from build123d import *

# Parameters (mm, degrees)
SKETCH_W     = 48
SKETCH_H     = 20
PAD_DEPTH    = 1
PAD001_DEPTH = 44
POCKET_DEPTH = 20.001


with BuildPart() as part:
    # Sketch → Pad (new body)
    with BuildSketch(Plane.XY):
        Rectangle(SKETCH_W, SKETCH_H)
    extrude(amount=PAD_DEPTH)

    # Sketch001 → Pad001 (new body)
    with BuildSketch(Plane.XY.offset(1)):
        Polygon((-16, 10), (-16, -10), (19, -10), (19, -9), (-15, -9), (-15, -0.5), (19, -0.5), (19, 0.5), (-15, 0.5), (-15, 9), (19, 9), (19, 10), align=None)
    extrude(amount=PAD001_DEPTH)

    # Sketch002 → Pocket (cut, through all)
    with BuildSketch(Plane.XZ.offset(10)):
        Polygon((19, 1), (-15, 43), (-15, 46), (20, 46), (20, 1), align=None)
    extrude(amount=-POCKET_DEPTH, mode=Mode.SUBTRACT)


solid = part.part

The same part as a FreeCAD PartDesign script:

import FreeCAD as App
import Part
import Sketcher

doc = App.newDocument("Part")
body = doc.addObject("PartDesign::Body", "Body")

sketch1 = doc.addObject("Sketcher::SketchObject", "Sketch")
body.addObject(sketch1)
sketch1.AttachmentSupport = (doc.XY_Plane, [""])
sketch1.MapMode = "FlatFace"
sketch1.addGeometry(Part.LineSegment(App.Vector(-24, 10, 0), App.Vector(-24, -10, 0)), False)
sketch1.addGeometry(Part.LineSegment(App.Vector(-24, -10, 0), App.Vector(24, -10, 0)), False)
sketch1.addGeometry(Part.LineSegment(App.Vector(24, -10, 0), App.Vector(24, 10, 0)), False)
sketch1.addGeometry(Part.LineSegment(App.Vector(24, 10, 0), App.Vector(-24, 10, 0)), False)
sketch1.addConstraint(Sketcher.Constraint("Coincident", 0, 2, 1, 1))
sketch1.addConstraint(Sketcher.Constraint("Coincident", 1, 2, 2, 1))
sketch1.addConstraint(Sketcher.Constraint("Coincident", 2, 2, 3, 1))
sketch1.addConstraint(Sketcher.Constraint("Coincident", 3, 2, 0, 1))
sketch1.addConstraint(Sketcher.Constraint("Vertical", 0))
sketch1.addConstraint(Sketcher.Constraint("Horizontal", 1))
sketch1.addConstraint(Sketcher.Constraint("Vertical", 2))
sketch1.addConstraint(Sketcher.Constraint("Horizontal", 3))
sketch1.addConstraint(Sketcher.Constraint("Symmetric", 0, 2, 2, 2, -1, 1))
sketch1.addConstraint(Sketcher.Constraint("DistanceX", 1, 1, 1, 2, 48.0))
sketch1.addConstraint(Sketcher.Constraint("DistanceY", 0, 2, 0, 1, 20.0))
pad1 = doc.addObject("PartDesign::Pad", "Pad")
body.addObject(pad1)
pad1.Profile = sketch1
pad1.Length = 1

sketch2 = doc.addObject("Sketcher::SketchObject", "Sketch001")
body.addObject(sketch2)
sketch2.AttachmentSupport = (doc.XY_Plane, [""])
sketch2.MapMode = "FlatFace"
sketch2.AttachmentOffset = App.Placement(App.Vector(0, 0, 1), App.Rotation())
sketch2.addGeometry(Part.LineSegment(App.Vector(-16, 10, 0), App.Vector(-16, -10, 0)), False)
sketch2.addGeometry(Part.LineSegment(App.Vector(-16, -10, 0), App.Vector(19, -10, 0)), False)
sketch2.addGeometry(Part.LineSegment(App.Vector(19, -10, 0), App.Vector(19, -9, 0)), False)
sketch2.addGeometry(Part.LineSegment(App.Vector(19, -9, 0), App.Vector(-15, -9, 0)), False)
sketch2.addGeometry(Part.LineSegment(App.Vector(-15, -9, 0), App.Vector(-15, -0.5, 0)), False)
sketch2.addGeometry(Part.LineSegment(App.Vector(-15, -0.5, 0), App.Vector(19, -0.5, 0)), False)
sketch2.addGeometry(Part.LineSegment(App.Vector(19, -0.5, 0), App.Vector(19, 0.5, 0)), False)
sketch2.addGeometry(Part.LineSegment(App.Vector(19, 0.5, 0), App.Vector(-15, 0.5, 0)), False)
sketch2.addGeometry(Part.LineSegment(App.Vector(-15, 0.5, 0), App.Vector(-15, 9, 0)), False)
sketch2.addGeometry(Part.LineSegment(App.Vector(-15, 9, 0), App.Vector(19, 9, 0)), False)
sketch2.addGeometry(Part.LineSegment(App.Vector(19, 9, 0), App.Vector(19, 10, 0)), False)
sketch2.addGeometry(Part.LineSegment(App.Vector(19, 10, 0), App.Vector(-16, 10, 0)), False)
sketch2.addConstraint(Sketcher.Constraint("Coincident", 0, 2, 1, 1))
sketch2.addConstraint(Sketcher.Constraint("Coincident", 1, 2, 2, 1))
sketch2.addConstraint(Sketcher.Constraint("Coincident", 2, 2, 3, 1))
sketch2.addConstraint(Sketcher.Constraint("Coincident", 3, 2, 4, 1))
sketch2.addConstraint(Sketcher.Constraint("Coincident", 4, 2, 5, 1))
sketch2.addConstraint(Sketcher.Constraint("Coincident", 5, 2, 6, 1))
sketch2.addConstraint(Sketcher.Constraint("Coincident", 6, 2, 7, 1))
sketch2.addConstraint(Sketcher.Constraint("Coincident", 7, 2, 8, 1))
sketch2.addConstraint(Sketcher.Constraint("Coincident", 8, 2, 9, 1))
sketch2.addConstraint(Sketcher.Constraint("Coincident", 9, 2, 10, 1))
sketch2.addConstraint(Sketcher.Constraint("Coincident", 10, 2, 11, 1))
sketch2.addConstraint(Sketcher.Constraint("Coincident", 11, 2, 0, 1))
sketch2.addConstraint(Sketcher.Constraint("Vertical", 0))
sketch2.addConstraint(Sketcher.Constraint("Horizontal", 1))
sketch2.addConstraint(Sketcher.Constraint("Vertical", 2))
sketch2.addConstraint(Sketcher.Constraint("Horizontal", 3))
sketch2.addConstraint(Sketcher.Constraint("Vertical", 4))
sketch2.addConstraint(Sketcher.Constraint("Horizontal", 5))
sketch2.addConstraint(Sketcher.Constraint("Vertical", 6))
sketch2.addConstraint(Sketcher.Constraint("Horizontal", 7))
sketch2.addConstraint(Sketcher.Constraint("Vertical", 8))
sketch2.addConstraint(Sketcher.Constraint("Horizontal", 9))
sketch2.addConstraint(Sketcher.Constraint("Vertical", 10))
sketch2.addConstraint(Sketcher.Constraint("Horizontal", 11))
sketch2.addConstraint(Sketcher.Constraint("Symmetric", 4, 2, 7, 2, -1))
sketch2.addConstraint(Sketcher.Constraint("Symmetric", 2, 2, 9, 2, -1))
sketch2.addConstraint(Sketcher.Constraint("Vertical", 2, 2, 5, 2))
sketch2.addConstraint(Sketcher.Constraint("Equal", 2, 6))
sketch2.addConstraint(Sketcher.Constraint("Equal", 6, 10))
sketch2.addConstraint(Sketcher.Constraint("DistanceX", 1, 1, 1, 2, 35.0))
sketch2.addConstraint(Sketcher.Constraint("DistanceX", 3, 2, 3, 1, 34.0))
sketch2.addConstraint(Sketcher.Constraint("DistanceY", 0, 2, 0, 1, 20.0))
sketch2.addConstraint(Sketcher.Constraint("DistanceY", 2, 1, 2, 2, 1.0))
sketch2.addConstraint(Sketcher.Constraint("DistanceX", 0, 2, -1, 1, 16.0))
pad2 = doc.addObject("PartDesign::Pad", "Pad001")
body.addObject(pad2)
pad2.Profile = sketch2
pad2.Length = 44

sketch3 = doc.addObject("Sketcher::SketchObject", "Sketch002")
body.addObject(sketch3)
sketch3.AttachmentSupport = (doc.XZ_Plane, [""])
sketch3.MapMode = "FlatFace"
sketch3.AttachmentOffset = App.Placement(App.Vector(0, 0, 10), App.Rotation())
sketch3.addGeometry(Part.LineSegment(App.Vector(-15, 43, 0), App.Vector(19, 1, 0)), False)
sketch3.addGeometry(Part.LineSegment(App.Vector(19, 1, 0), App.Vector(20, 1, 0)), False)
sketch3.addGeometry(Part.LineSegment(App.Vector(20, 1, 0), App.Vector(20, 46, 0)), False)
sketch3.addGeometry(Part.LineSegment(App.Vector(20, 46, 0), App.Vector(-15, 46, 0)), False)
sketch3.addGeometry(Part.LineSegment(App.Vector(-15, 46, 0), App.Vector(-15, 43, 0)), False)
sketch3.addConstraint(Sketcher.Constraint("Coincident", 0, 2, 1, 1))
sketch3.addConstraint(Sketcher.Constraint("Coincident", 1, 2, 2, 1))
sketch3.addConstraint(Sketcher.Constraint("Coincident", 2, 2, 3, 1))
sketch3.addConstraint(Sketcher.Constraint("Coincident", 3, 2, 4, 1))
sketch3.addConstraint(Sketcher.Constraint("Coincident", 4, 2, 0, 1))
sketch3.addConstraint(Sketcher.Constraint("Horizontal", 1))
sketch3.addConstraint(Sketcher.Constraint("Vertical", 2))
sketch3.addConstraint(Sketcher.Constraint("Horizontal", 3))
sketch3.addConstraint(Sketcher.Constraint("Vertical", 4))
sketch3.addConstraint(Sketcher.Constraint("DistanceX", 1, 1, 1, 2, 1.0))
sketch3.addConstraint(Sketcher.Constraint("DistanceX", 3, 2, 3, 1, 35.0))
sketch3.addConstraint(Sketcher.Constraint("DistanceY", 2, 1, 2, 2, 45.0))
sketch3.addConstraint(Sketcher.Constraint("DistanceY", 4, 2, 4, 1, 3.0))
sketch3.addConstraint(Sketcher.Constraint("DistanceX", -1, 1, 0, 2, 19.0))
sketch3.addConstraint(Sketcher.Constraint("DistanceY", -1, 1, 0, 2, 1.0))
pocket1 = doc.addObject("PartDesign::Pocket", "Pocket")
body.addObject(pocket1)
pocket1.Profile = sketch3
pocket1.Type = "ThroughAll"

doc.recompute()
